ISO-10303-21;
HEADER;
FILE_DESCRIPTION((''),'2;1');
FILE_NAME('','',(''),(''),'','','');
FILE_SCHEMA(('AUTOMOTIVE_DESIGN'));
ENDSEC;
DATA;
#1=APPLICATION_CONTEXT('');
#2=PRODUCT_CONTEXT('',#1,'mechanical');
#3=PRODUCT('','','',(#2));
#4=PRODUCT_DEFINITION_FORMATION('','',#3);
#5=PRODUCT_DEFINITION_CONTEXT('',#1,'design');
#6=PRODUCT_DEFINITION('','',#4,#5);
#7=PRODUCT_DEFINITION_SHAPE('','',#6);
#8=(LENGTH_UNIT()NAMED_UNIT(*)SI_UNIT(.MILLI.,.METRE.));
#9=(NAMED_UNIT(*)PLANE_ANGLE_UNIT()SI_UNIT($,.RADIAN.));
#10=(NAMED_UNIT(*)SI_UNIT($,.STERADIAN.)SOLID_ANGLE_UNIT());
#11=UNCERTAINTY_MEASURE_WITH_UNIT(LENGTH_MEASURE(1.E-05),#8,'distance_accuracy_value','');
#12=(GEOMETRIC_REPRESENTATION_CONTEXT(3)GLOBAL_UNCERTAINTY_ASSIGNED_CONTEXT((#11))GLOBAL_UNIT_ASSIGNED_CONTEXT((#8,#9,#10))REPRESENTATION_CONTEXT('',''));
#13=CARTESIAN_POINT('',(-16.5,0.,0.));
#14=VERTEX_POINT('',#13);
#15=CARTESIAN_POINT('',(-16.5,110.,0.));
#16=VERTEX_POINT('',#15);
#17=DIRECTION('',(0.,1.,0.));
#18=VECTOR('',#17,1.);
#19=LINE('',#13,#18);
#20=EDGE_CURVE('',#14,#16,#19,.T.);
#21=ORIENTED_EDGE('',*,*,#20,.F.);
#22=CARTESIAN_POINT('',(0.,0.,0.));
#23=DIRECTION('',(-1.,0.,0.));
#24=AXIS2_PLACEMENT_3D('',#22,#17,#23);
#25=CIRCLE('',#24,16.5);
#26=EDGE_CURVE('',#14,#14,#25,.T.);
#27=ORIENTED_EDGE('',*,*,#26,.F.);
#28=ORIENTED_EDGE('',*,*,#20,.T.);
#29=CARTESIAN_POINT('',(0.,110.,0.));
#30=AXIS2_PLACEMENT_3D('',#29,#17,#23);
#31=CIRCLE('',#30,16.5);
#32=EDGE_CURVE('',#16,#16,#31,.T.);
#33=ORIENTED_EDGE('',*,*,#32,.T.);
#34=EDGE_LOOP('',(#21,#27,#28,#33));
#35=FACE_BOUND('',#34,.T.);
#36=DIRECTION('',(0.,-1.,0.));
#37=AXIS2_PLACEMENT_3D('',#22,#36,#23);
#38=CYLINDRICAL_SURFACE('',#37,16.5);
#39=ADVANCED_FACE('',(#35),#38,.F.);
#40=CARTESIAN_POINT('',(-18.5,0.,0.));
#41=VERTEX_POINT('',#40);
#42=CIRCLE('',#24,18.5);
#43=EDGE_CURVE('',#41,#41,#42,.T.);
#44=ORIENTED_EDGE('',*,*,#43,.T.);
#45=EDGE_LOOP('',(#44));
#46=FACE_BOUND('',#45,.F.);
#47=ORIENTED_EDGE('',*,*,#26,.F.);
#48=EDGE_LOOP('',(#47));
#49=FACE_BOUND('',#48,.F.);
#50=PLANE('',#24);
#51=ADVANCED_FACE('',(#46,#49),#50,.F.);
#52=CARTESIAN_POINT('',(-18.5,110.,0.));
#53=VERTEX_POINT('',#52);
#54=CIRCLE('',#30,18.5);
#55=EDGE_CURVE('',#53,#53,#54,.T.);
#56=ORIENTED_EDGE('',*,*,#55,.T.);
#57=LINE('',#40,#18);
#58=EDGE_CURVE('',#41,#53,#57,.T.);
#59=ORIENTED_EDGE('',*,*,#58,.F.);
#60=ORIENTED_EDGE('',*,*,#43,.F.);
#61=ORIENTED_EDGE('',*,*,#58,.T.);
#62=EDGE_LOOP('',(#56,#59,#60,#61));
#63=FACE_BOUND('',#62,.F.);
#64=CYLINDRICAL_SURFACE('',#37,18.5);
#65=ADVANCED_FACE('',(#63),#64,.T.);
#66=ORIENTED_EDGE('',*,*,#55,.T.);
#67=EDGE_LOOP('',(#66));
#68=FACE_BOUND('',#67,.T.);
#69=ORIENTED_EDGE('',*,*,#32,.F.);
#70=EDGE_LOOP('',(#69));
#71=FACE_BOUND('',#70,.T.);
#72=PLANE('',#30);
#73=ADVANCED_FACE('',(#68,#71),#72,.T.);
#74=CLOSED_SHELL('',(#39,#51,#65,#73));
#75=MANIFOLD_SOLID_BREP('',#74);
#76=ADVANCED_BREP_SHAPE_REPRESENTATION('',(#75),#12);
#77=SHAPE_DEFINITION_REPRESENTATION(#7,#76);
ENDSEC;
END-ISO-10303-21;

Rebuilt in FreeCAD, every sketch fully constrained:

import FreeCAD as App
import Part
import Sketcher
Q = App.Units.Quantity

doc = App.newDocument("Part")
body = doc.addObject("PartDesign::Body", "Body")

# Sketch on XZ plane
sketch1 = doc.addObject("Sketcher::SketchObject", "Sketch")
body.addObject(sketch1)
sketch1.AttachmentSupport = (doc.XZ_Plane, [""])
sketch1.MapMode = "FlatFace"
sketch1.addGeometry(Part.Circle(App.Vector(0, 0, 0), App.Vector(0, 0, 1), 18), False)
sketch1.addGeometry(Part.Circle(App.Vector(0, 0, 0), App.Vector(0, 0, 1), 16), False)
sketch1.addConstraint(Sketcher.Constraint("Coincident", 0, 3, -1, 1))
sketch1.addConstraint(Sketcher.Constraint("Coincident", 1, 3, -1, 1))
sketch1.addConstraint(Sketcher.Constraint("Diameter", 0, Q("37 mm")))
sketch1.addConstraint(Sketcher.Constraint("Diameter", 1, Q("33 mm")))
pad1 = doc.addObject("PartDesign::Pad", "Pad")
body.addObject(pad1)
pad1.Profile = sketch1
pad1.Length = 110
pad1.Reversed = True

doc.recompute()
